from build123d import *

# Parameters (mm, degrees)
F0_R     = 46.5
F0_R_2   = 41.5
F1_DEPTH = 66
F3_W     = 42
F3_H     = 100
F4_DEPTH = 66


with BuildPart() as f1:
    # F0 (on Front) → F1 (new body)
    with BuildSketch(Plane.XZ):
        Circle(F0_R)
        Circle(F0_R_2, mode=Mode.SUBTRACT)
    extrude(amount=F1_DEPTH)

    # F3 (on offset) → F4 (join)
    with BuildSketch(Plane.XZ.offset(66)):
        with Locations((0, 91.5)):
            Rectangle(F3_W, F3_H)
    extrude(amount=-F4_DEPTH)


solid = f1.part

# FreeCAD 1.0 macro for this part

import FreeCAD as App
import Part
import Sketcher

V = App.Vector
Q = App.Units.Quantity


def add_polygon(sketch, points):
    """Adds a closed chain of lines whose ends are joined by coincident constraints."""
    first, n = sketch.GeometryCount, len(points)
    for a, b in zip(points, points[1:] + points[:1]):
        sketch.addGeometry(Part.LineSegment(App.Vector(*a, 0), App.Vector(*b, 0)), False)
    for i in range(n):
        sketch.addConstraint(Sketcher.Constraint("Coincident", first + i, 2, first + (i + 1) % n, 1))

doc = App.newDocument("Part")
body = doc.addObject("PartDesign::Body", "Body")

# Sketch on XZ plane
sketch1 = doc.addObject("Sketcher::SketchObject", "Sketch")
body.addObject(sketch1)
sketch1.AttachmentSupport = (doc.XZ_Plane, [""])
sketch1.MapMode = "FlatFace"
sketch1.addGeometry([
    Part.Circle(V(0, 0, 0), V(0, 0, 1), 46.5),
    Part.Circle(V(0, 0, 0), V(0, 0, 1), 41.5),
], False)
sketch1.addConstraint([
    Sketcher.Constraint("Coincident", 0, 3, -1, 1),
    Sketcher.Constraint("Coincident", 1, 3, -1, 1),
    Sketcher.Constraint("Diameter", 0, Q("93 mm")),
    Sketcher.Constraint("Diameter", 1, Q("83 mm")),
])
pad1 = doc.addObject("PartDesign::Pad", "Pad")
body.addObject(pad1)
pad1.Profile = sketch1
pad1.Length = 66

# Sketch on XZ plane
sketch2 = doc.addObject("Sketcher::SketchObject", "Sketch001")
body.addObject(sketch2)
sketch2.AttachmentSupport = (doc.XZ_Plane, [""])
sketch2.MapMode = "FlatFace"
sketch2.AttachmentOffset = App.Placement(V(0, 0, 66), App.Rotation())
add_polygon(sketch2, [(-21, 141.5), (-21, 41.5), (21, 41.5), (21, 141.5)])  # lines 0-3
sketch2.addConstraint([
    Sketcher.Constraint("Vertical", 0),
    Sketcher.Constraint("Horizontal", 1),
    Sketcher.Constraint("Vertical", 2),
    Sketcher.Constraint("Horizontal", 3),
    Sketcher.Constraint("DistanceX", 1, 1, 1, 2, Q("42 mm")),
    Sketcher.Constraint("DistanceY", 0, 2, 0, 1, Q("100 mm")),
    Sketcher.Constraint("DistanceX", 0, 2, -1, 1, Q("21 mm")),
    Sketcher.Constraint("DistanceY", -1, 1, 0, 2, Q("41.5 mm")),
])
pad2 = doc.addObject("PartDesign::Pad", "Pad001")
body.addObject(pad2)
pad2.Profile = sketch2
pad2.Length = 66
pad2.Reversed = True

doc.recompute()
